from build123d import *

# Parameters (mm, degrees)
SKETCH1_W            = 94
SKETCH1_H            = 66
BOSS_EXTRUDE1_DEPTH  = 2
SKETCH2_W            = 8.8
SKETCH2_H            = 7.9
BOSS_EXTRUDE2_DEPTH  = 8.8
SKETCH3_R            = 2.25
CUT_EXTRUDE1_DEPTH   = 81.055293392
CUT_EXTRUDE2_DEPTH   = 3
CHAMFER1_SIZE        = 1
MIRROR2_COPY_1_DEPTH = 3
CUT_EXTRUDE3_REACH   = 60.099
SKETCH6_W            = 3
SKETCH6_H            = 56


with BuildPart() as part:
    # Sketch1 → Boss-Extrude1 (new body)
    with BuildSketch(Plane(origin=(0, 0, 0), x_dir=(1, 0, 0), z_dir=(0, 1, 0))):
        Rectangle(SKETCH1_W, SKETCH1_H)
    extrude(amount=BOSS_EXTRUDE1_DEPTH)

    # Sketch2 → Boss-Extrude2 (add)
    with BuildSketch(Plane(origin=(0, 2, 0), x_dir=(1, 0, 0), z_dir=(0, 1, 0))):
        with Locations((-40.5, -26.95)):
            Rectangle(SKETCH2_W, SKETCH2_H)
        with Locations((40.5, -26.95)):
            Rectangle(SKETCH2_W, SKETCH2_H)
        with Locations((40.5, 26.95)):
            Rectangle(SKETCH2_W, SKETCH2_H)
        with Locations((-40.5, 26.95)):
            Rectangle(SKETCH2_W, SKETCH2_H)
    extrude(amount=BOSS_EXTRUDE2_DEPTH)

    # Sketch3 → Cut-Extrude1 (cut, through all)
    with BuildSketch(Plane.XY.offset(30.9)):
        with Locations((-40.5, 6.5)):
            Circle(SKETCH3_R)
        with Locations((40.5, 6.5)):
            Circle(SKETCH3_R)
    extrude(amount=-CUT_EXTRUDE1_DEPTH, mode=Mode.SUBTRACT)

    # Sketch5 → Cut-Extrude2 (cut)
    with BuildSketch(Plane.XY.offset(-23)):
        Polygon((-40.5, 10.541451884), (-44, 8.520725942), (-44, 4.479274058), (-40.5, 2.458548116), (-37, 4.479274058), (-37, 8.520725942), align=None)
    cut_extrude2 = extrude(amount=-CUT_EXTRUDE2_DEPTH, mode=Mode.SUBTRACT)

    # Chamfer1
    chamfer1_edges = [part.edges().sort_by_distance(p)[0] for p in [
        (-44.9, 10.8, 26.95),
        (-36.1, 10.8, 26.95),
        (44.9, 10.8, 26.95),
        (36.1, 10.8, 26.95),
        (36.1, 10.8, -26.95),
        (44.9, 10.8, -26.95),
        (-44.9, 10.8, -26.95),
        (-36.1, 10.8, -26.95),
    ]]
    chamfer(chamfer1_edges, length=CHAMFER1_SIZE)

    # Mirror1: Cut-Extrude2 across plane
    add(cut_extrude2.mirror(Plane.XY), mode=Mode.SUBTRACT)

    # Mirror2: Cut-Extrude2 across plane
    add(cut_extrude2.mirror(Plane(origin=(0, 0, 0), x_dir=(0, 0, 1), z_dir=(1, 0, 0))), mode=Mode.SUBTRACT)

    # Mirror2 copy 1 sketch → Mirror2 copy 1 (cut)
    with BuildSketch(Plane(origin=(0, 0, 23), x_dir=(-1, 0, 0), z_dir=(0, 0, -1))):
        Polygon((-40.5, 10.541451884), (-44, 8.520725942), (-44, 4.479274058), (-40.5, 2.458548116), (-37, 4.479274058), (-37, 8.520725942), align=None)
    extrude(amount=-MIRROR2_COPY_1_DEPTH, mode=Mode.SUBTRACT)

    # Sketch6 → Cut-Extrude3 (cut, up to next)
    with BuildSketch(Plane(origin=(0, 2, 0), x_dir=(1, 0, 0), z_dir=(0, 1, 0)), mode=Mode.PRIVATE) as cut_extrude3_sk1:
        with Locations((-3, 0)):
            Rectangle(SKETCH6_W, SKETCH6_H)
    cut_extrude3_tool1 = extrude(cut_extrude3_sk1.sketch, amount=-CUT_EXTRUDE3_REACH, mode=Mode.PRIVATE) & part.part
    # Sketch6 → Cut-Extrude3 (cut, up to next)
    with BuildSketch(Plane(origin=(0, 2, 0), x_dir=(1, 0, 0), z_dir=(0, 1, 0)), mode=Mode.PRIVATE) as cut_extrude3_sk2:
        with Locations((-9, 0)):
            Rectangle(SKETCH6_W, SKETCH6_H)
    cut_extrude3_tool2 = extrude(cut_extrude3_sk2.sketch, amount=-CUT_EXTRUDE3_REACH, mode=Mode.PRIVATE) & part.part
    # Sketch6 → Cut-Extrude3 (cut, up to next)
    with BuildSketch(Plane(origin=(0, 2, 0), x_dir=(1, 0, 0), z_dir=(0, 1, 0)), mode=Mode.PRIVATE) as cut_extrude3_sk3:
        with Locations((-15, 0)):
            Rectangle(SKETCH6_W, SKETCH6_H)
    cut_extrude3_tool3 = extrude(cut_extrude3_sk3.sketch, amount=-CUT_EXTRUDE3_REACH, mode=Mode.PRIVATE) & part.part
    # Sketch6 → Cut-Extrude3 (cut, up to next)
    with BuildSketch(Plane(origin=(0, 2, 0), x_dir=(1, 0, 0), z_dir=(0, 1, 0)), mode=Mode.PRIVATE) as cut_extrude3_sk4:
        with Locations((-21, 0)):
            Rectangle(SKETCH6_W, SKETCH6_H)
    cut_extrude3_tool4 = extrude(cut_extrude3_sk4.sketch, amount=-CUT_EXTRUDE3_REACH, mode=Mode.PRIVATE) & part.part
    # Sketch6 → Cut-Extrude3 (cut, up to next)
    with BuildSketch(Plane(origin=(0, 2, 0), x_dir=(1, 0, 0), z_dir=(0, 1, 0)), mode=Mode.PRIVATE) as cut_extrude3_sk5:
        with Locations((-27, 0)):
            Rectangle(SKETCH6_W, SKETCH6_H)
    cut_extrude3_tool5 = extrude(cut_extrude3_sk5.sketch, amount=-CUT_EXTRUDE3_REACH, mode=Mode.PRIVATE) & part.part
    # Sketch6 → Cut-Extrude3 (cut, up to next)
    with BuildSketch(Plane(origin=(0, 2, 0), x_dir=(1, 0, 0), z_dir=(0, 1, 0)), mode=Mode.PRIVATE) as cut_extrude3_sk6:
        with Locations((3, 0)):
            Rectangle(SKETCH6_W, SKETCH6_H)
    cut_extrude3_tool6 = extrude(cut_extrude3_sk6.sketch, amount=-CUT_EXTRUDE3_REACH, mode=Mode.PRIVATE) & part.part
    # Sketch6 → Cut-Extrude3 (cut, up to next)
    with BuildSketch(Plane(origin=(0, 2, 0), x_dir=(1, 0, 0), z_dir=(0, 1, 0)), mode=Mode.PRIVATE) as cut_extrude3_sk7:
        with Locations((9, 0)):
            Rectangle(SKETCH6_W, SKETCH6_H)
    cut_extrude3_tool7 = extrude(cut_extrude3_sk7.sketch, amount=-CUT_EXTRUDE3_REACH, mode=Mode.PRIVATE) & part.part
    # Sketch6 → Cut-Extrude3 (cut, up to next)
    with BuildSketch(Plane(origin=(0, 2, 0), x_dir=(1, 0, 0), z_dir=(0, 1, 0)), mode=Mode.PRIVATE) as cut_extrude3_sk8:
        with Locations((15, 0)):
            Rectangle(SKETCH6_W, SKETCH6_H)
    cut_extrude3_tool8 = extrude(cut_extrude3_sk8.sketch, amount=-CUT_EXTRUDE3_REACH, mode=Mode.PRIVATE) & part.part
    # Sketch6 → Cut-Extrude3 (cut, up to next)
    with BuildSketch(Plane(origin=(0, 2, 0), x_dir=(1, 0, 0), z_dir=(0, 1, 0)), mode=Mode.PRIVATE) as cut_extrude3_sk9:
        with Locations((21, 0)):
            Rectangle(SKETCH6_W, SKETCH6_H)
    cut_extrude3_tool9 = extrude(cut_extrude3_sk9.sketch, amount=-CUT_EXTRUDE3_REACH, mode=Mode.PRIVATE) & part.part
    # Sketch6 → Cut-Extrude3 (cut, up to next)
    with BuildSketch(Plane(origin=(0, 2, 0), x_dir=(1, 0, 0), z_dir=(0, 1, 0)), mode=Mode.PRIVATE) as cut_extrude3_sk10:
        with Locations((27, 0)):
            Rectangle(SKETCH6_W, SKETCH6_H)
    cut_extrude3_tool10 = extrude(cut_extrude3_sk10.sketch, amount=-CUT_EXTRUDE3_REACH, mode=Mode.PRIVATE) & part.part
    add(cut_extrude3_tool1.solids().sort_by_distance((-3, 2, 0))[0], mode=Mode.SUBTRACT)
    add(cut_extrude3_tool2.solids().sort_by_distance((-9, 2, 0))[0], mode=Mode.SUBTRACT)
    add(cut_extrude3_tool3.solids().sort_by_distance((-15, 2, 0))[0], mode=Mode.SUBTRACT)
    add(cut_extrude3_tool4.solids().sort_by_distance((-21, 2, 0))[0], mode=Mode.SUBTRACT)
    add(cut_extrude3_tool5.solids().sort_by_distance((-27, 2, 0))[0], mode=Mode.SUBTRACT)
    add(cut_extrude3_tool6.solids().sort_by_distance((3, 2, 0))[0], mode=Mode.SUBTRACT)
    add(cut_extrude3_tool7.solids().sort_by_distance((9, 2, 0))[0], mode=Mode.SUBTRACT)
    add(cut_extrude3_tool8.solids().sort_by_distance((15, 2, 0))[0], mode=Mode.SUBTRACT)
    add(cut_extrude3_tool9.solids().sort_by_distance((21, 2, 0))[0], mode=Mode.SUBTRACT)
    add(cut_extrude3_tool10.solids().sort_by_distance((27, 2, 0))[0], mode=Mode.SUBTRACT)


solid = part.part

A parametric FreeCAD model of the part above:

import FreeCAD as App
import Part
import Sketcher

V = App.Vector
Q = App.Units.Quantity


def edges_at(feature, points):
    """Names of the edges that pass closest to the given points."""
    edges = feature.Shape.Edges
    near = lambda p: min(range(len(edges)), key=lambda i: edges[i].distToShape(Part.Vertex(*p))[0])
    return sorted({f"Edge{near(p) + 1}" for p in points})


def add_polygon(sketch, points):
    """Adds a closed chain of lines whose ends are joined by coincident constraints."""
    first, n = sketch.GeometryCount, len(points)
    for a, b in zip(points, points[1:] + points[:1]):
        sketch.addGeometry(Part.LineSegment(App.Vector(*a, 0), App.Vector(*b, 0)), False)
    for i in range(n):
        sketch.addConstraint(Sketcher.Constraint("Coincident", first + i, 2, first + (i + 1) % n, 1))

doc = App.newDocument("Part")
params = doc.addObject("Spreadsheet::Sheet", "Params")
for row, (alias, value) in enumerate([
    ("sketch1_width", "94 mm"),
    ("sketch1_height", "66 mm"),
    ("pad1_length", "2 mm"),
    ("sketch2_width", "8.8 mm"),
    ("sketch2_height", "7.9 mm"),
    ("pad2_length", "8.8 mm"),
    ("sketch3_diameter", "4.5 mm"),
    ("pocket2_length", "3 mm"),
    ("chamfer_size", "1 mm"),
    ("pocket3_length", "3 mm"),
    ("sketch6_width", "3 mm"),
    ("sketch6_height", "56 mm"),
    ("sketch7_width", "3 mm"),
    ("sketch7_height", "56 mm"),
    ("sketch8_width", "3 mm"),
    ("sketch8_height", "56 mm"),
    ("sketch9_width", "3 mm"),
    ("sketch9_height", "56 mm"),
    ("sketch10_width", "3 mm"),
    ("sketch10_height", "56 mm"),
    ("sketch11_width", "3 mm"),
    ("sketch11_height", "56 mm"),
    ("sketch12_width", "3 mm"),
    ("sketch12_height", "56 mm"),
    ("sketch13_width", "3 mm"),
    ("sketch13_height", "56 mm"),
    ("sketch14_width", "3 mm"),
    ("sketch14_height", "56 mm"),
    ("sketch15_width", "3 mm"),
    ("sketch15_height", "56 mm"),
], start=1):
    params.set(f"A{row}", alias)
    params.set(f"B{row}", "=" + value)
    params.setAlias(f"B{row}", alias)

body = doc.addObject("PartDesign::Body", "Body")

sketch1 = doc.addObject("Sketcher::SketchObject", "Sketch")
body.addObject(sketch1)
sketch1.AttachmentSupport = (doc.XZ_Plane, [""])
sketch1.MapMode = "FlatFace"
add_polygon(sketch1, [(-47, -33), (-47, 33), (47, 33), (47, -33)])
sketch1.addConstraint([
    Sketcher.Constraint("Vertical", 0),
    Sketcher.Constraint("Horizontal", 1),
    Sketcher.Constraint("Vertical", 2),
    Sketcher.Constraint("Horizontal", 3),
    Sketcher.Constraint("Symmetric", 0, 2, 2, 2, -1, 1),
    Sketcher.Constraint("DistanceX", 1, 1, 1, 2, 94.0),
    Sketcher.Constraint("DistanceY", 0, 1, 0, 2, 66.0),
])
sketch1.setExpression("Constraints[9]", "Params.sketch1_width")
sketch1.setExpression("Constraints[10]", "Params.sketch1_height")
pad1 = doc.addObject("PartDesign::Pad", "Pad")
body.addObject(pad1)
pad1.Profile = sketch1
pad1.setExpression("Length", "Params.pad1_length")
pad1.Reversed = True

sketch2 = doc.addObject("Sketcher::SketchObject", "Sketch001")
body.addObject(sketch2)
sketch2.AttachmentSupport = (doc.XZ_Plane, [""])
sketch2.MapMode = "FlatFace"
sketch2.AttachmentOffset = App.Placement(V(0, 0, -2), App.Rotation())
add_polygon(sketch2, [(-45, 23), (-45, 31), (-36, 31), (-36, 23)])
add_polygon(sketch2, [(36, 23), (36, 31), (45, 31), (45, 23)])
add_polygon(sketch2, [(36, -31), (36, -23), (45, -23), (45, -31)])
add_polygon(sketch2, [(-45, -31), (-45, -23), (-36, -23), (-36, -31)])
sketch2.addConstraint([
    Sketcher.Constraint("Vertical", 0),
    Sketcher.Constraint("Horizontal", 1),
    Sketcher.Constraint("Vertical", 2),
    Sketcher.Constraint("Horizontal", 3),
    Sketcher.Constraint("Vertical", 4),
    Sketcher.Constraint("Horizontal", 5),
    Sketcher.Constraint("Vertical", 6),
    Sketcher.Constraint("Horizontal", 7),
    Sketcher.Constraint("Vertical", 8),
    Sketcher.Constraint("Horizontal", 9),
    Sketcher.Constraint("Vertical", 10),
    Sketcher.Constraint("Horizontal", 11),
    Sketcher.Constraint("Vertical", 12),
    Sketcher.Constraint("Horizontal", 13),
    Sketcher.Constraint("Vertical", 14),
    Sketcher.Constraint("Horizontal", 15),
    Sketcher.Constraint("Symmetric", 2, 2, 8, 2, -1, 1),
    Sketcher.Constraint("Symmetric", 0, 2, 10, 2, -1, 1),
    Sketcher.Constraint("Symmetric", 6, 2, 12, 2, -1, 1),
    Sketcher.Constraint("Symmetric", 4, 2, 14, 2, -1, 1),
    Sketcher.Constraint("Symmetric", 1, 2, 4, 2, -2),
    Sketcher.Constraint("Symmetric", 3, 2, 6, 2, -2),
    Sketcher.Constraint("DistanceX", 1, 1, 1, 2, 8.8),
    Sketcher.Constraint("DistanceY", 0, 1, 0, 2, 7.9),
    Sketcher.Constraint("DistanceY", -1, 1, 2, 2, 23.0),
    Sketcher.Constraint("DistanceX", 0, 2, 4, 2, 81.0),
])
sketch2.setExpression("Constraints[38]", "Params.sketch2_width")
sketch2.setExpression("Constraints[39]", "Params.sketch2_height")
pad2 = doc.addObject("PartDesign::Pad", "Pad001")
body.addObject(pad2)
pad2.Profile = sketch2
pad2.setExpression("Length", "Params.pad2_length")
pad2.Reversed = True

sketch3 = doc.addObject("Sketcher::SketchObject", "Sketch002")
body.addObject(sketch3)
sketch3.AttachmentSupport = (doc.XY_Plane, [""])
sketch3.MapMode = "FlatFace"
sketch3.AttachmentOffset = App.Placement(V(0, 0, 30.9), App.Rotation())
sketch3.addGeometry([
    Part.Circle(V(-40.5, 6.5, 0), V(0, 0, 1), 2.2),
    Part.Circle(V(40.5, 6.5, 0), V(0, 0, 1), 2.2),
], False)
sketch3.addConstraint([
    Sketcher.Constraint("Equal", 0, 1),
    Sketcher.Constraint("Symmetric", 0, 3, 1, 3, -2),
    Sketcher.Constraint("Diameter", 0, 4.5),
    Sketcher.Constraint("DistanceX", 0, 3, 1, 3, 81.0),
    Sketcher.Constraint("DistanceY", -1, 1, 0, 3, 6.5),
])
sketch3.setExpression("Constraints[2]", "Params.sketch3_diameter")
pocket1 = doc.addObject("PartDesign::Pocket", "Pocket")
body.addObject(pocket1)
pocket1.Profile = sketch3
pocket1.Type = "ThroughAll"

sketch4 = doc.addObject("Sketcher::SketchObject", "Sketch003")
body.addObject(sketch4)
sketch4.AttachmentSupport = (doc.XY_Plane, [""])
sketch4.MapMode = "FlatFace"
sketch4.AttachmentOffset = App.Placement(V(0, 0, -23), App.Rotation())
add_polygon(sketch4, [(-40.5, 10.5), (-44, 8.5), (-44, 4.5), (-40.5, 2.5), (-37, 4.5), (-37, 8.5)])
sketch4.addConstraint([
    Sketcher.Constraint("Vertical", 1),
    Sketcher.Constraint("Vertical", 4),
    Sketcher.Constraint("Parallel", 0, 3),
    Sketcher.Constraint("Parallel", 2, 5),
    Sketcher.Constraint("Horizontal", 1, 2, 3, 2),
    Sketcher.Constraint("Horizontal", 0, 2, 4, 2),
    Sketcher.Constraint("Vertical", 2, 2, 5, 2),
    Sketcher.Constraint("Angle", 0, Q("-150 deg")),
    Sketcher.Constraint("DistanceX", 0, 2, -1, 1, 44.0),
    Sketcher.Constraint("DistanceX", 3, 2, -1, 1, 37.0),
    Sketcher.Constraint("DistanceY", 1, 2, 1, 1, 4.041452),
    Sketcher.Constraint("DistanceY", -1, 1, 2, 2, 2.458548),
])
pocket2 = doc.addObject("PartDesign::Pocket", "Pocket001")
body.addObject(pocket2)
pocket2.Profile = sketch4
pocket2.setExpression("Length", "Params.pocket2_length")
doc.recompute()

chamfer = doc.addObject("PartDesign::Chamfer", "Chamfer")
body.addObject(chamfer)
chamfer.Base = (pocket2, edges_at(pocket2, [
    (-44.9, 10.8, 26.95),
    (-36.1, 10.8, 26.95),
    (44.9, 10.8, 26.95),
    (36.1, 10.8, 26.95),
    (36.1, 10.8, -26.95),
    (44.9, 10.8, -26.95),
    (-44.9, 10.8, -26.95),
    (-36.1, 10.8, -26.95),
]))
chamfer.setExpression("Size", "Params.chamfer_size")
doc.recompute()

mirrored = doc.addObject("PartDesign::Mirrored", "Mirrored")
body.addObject(mirrored)
mirrored.Originals = [pocket2]
mirrored.MirrorPlane = (doc.XY_Plane, [""])
body.Tip = mirrored
doc.recompute()

mirrored2 = doc.addObject("PartDesign::Mirrored", "Mirrored001")
body.addObject(mirrored2)
mirrored2.Originals = [pocket2]
mirrored2.MirrorPlane = (doc.YZ_Plane, [""])
body.Tip = mirrored2

sketch5 = doc.addObject("Sketcher::SketchObject", "Sketch004")
body.addObject(sketch5)
sketch5.AttachmentSupport = (doc.XY_Plane, [""])
sketch5.MapMode = "FlatFace"
sketch5.AttachmentOffset = App.Placement(V(0, 0, 23), App.Rotation())
add_polygon(sketch5, [(40.5, 10.5), (44, 8.5), (44, 4.5), (40.5, 2.5), (37, 4.5), (37, 8.5)])
sketch5.addConstraint([
    Sketcher.Constraint("Vertical", 1),
    Sketcher.Constraint("Vertical", 4),
    Sketcher.Constraint("Parallel", 0, 3),
    Sketcher.Constraint("Parallel", 2, 5),
    Sketcher.Constraint("Horizontal", 1, 2, 3, 2),
    Sketcher.Constraint("Horizontal", 0, 2, 4, 2),
    Sketcher.Constraint("Vertical", 2, 2, 5, 2),
    Sketcher.Constraint("Angle", 0, Q("-30 deg")),
    Sketcher.Constraint("DistanceX", -1, 1, 0, 2, 44.0),
    Sketcher.Constraint("DistanceX", -1, 1, 3, 2, 37.0),
    Sketcher.Constraint("DistanceY", 1, 2, 1, 1, 4.041452),
    Sketcher.Constraint("DistanceY", -1, 1, 2, 2, 2.458548),
])
pocket3 = doc.addObject("PartDesign::Pocket", "Pocket002")
body.addObject(pocket3)
pocket3.Profile = sketch5
pocket3.setExpression("Length", "Params.pocket3_length")
pocket3.Reversed = True

sketch6 = doc.addObject("Sketcher::SketchObject", "Sketch005")
body.addObject(sketch6)
sketch6.AttachmentSupport = (doc.XZ_Plane, [""])
sketch6.MapMode = "FlatFace"
sketch6.AttachmentOffset = App.Placement(V(0, 0, -2), App.Rotation())
add_polygon(sketch6, [(-4.5, -28), (-4.5, 28), (-1.5, 28), (-1.5, -28)])
sketch6.addConstraint([
    Sketcher.Constraint("Vertical", 0),
    Sketcher.Constraint("Horizontal", 1),
    Sketcher.Constraint("Vertical", 2),
    Sketcher.Constraint("Horizontal", 3),
    Sketcher.Constraint("DistanceX", 1, 1, 1, 2, 3.0),
    Sketcher.Constraint("DistanceY", 0, 1, 0, 2, 56.0),
    Sketcher.Constraint("DistanceY", -1, 1, 0, 2, 28.0),
    Sketcher.Constraint("DistanceX", 0, 2, -1, 1, 4.5),
])
sketch6.setExpression("Constraints[8]", "Params.sketch6_width")
sketch6.setExpression("Constraints[9]", "Params.sketch6_height")
pocket4 = doc.addObject("PartDesign::Pocket", "Pocket003")
body.addObject(pocket4)
pocket4.Profile = sketch6
pocket4.Type = "UpToFirst"
pocket4.Reversed = True

sketch7 = doc.addObject("Sketcher::SketchObject", "Sketch006")
body.addObject(sketch7)
sketch7.AttachmentSupport = (doc.XZ_Plane, [""])
sketch7.MapMode = "FlatFace"
sketch7.AttachmentOffset = App.Placement(V(0, 0, -2), App.Rotation())
add_polygon(sketch7, [(-10.5, -28), (-10.5, 28), (-7.5, 28), (-7.5, -28)])
sketch7.addConstraint([
    Sketcher.Constraint("Vertical", 0),
    Sketcher.Constraint("Horizontal", 1),
    Sketcher.Constraint("Vertical", 2),
    Sketcher.Constraint("Horizontal", 3),
    Sketcher.Constraint("DistanceX", 1, 1, 1, 2, 3.0),
    Sketcher.Constraint("DistanceY", 0, 1, 0, 2, 56.0),
    Sketcher.Constraint("DistanceY", -1, 1, 0, 2, 28.0),
    Sketcher.Constraint("DistanceX", 0, 2, -1, 1, 10.5),
])
sketch7.setExpression("Constraints[8]", "Params.sketch7_width")
sketch7.setExpression("Constraints[9]", "Params.sketch7_height")
pocket5 = doc.addObject("PartDesign::Pocket", "Pocket004")
body.addObject(pocket5)
pocket5.Profile = sketch7
pocket5.Type = "UpToFirst"
pocket5.Reversed = True

sketch8 = doc.addObject("Sketcher::SketchObject", "Sketch007")
body.addObject(sketch8)
sketch8.AttachmentSupport = (doc.XZ_Plane, [""])
sketch8.MapMode = "FlatFace"
sketch8.AttachmentOffset = App.Placement(V(0, 0, -2), App.Rotation())
add_polygon(sketch8, [(-16.5, -28), (-16.5, 28), (-13.5, 28), (-13.5, -28)])
sketch8.addConstraint([
    Sketcher.Constraint("Vertical", 0),
    Sketcher.Constraint("Horizontal", 1),
    Sketcher.Constraint("Vertical", 2),
    Sketcher.Constraint("Horizontal", 3),
    Sketcher.Constraint("DistanceX", 1, 1, 1, 2, 3.0),
    Sketcher.Constraint("DistanceY", 0, 1, 0, 2, 56.0),
    Sketcher.Constraint("DistanceY", -1, 1, 0, 2, 28.0),
    Sketcher.Constraint("DistanceX", 0, 2, -1, 1, 16.5),
])
sketch8.setExpression("Constraints[8]", "Params.sketch8_width")
sketch8.setExpression("Constraints[9]", "Params.sketch8_height")
pocket6 = doc.addObject("PartDesign::Pocket", "Pocket005")
body.addObject(pocket6)
pocket6.Profile = sketch8
pocket6.Type = "UpToFirst"
pocket6.Reversed = True

sketch9 = doc.addObject("Sketcher::SketchObject", "Sketch008")
body.addObject(sketch9)
sketch9.AttachmentSupport = (doc.XZ_Plane, [""])
sketch9.MapMode = "FlatFace"
sketch9.AttachmentOffset = App.Placement(V(0, 0, -2), App.Rotation())
add_polygon(sketch9, [(-22.5, -28), (-22.5, 28), (-19.5, 28), (-19.5, -28)])
sketch9.addConstraint([
    Sketcher.Constraint("Vertical", 0),
    Sketcher.Constraint("Horizontal", 1),
    Sketcher.Constraint("Vertical", 2),
    Sketcher.Constraint("Horizontal", 3),
    Sketcher.Constraint("DistanceX", 1, 1, 1, 2, 3.0),
    Sketcher.Constraint("DistanceY", 0, 1, 0, 2, 56.0),
    Sketcher.Constraint("DistanceY", -1, 1, 0, 2, 28.0),
    Sketcher.Constraint("DistanceX", 0, 2, -1, 1, 22.5),
])
sketch9.setExpression("Constraints[8]", "Params.sketch9_width")
sketch9.setExpression("Constraints[9]", "Params.sketch9_height")
pocket7 = doc.addObject("PartDesign::Pocket", "Pocket006")
body.addObject(pocket7)
pocket7.Profile = sketch9
pocket7.Type = "UpToFirst"
pocket7.Reversed = True

sketch10 = doc.addObject("Sketcher::SketchObject", "Sketch009")
body.addObject(sketch10)
sketch10.AttachmentSupport = (doc.XZ_Plane, [""])
sketch10.MapMode = "FlatFace"
sketch10.AttachmentOffset = App.Placement(V(0, 0, -2), App.Rotation())
add_polygon(sketch10, [(-28.5, -28), (-28.5, 28), (-25.5, 28), (-25.5, -28)])
sketch10.addConstraint([
    Sketcher.Constraint("Vertical", 0),
    Sketcher.Constraint("Horizontal", 1),
    Sketcher.Constraint("Vertical", 2),
    Sketcher.Constraint("Horizontal", 3),
    Sketcher.Constraint("DistanceX", 1, 1, 1, 2, 3.0),
    Sketcher.Constraint("DistanceY", 0, 1, 0, 2, 56.0),
    Sketcher.Constraint("DistanceY", -1, 1, 0, 2, 28.0),
    Sketcher.Constraint("DistanceX", 0, 2, -1, 1, 28.5),
])
sketch10.setExpression("Constraints[8]", "Params.sketch10_width")
sketch10.setExpression("Constraints[9]", "Params.sketch10_height")
pocket8 = doc.addObject("PartDesign::Pocket", "Pocket007")
body.addObject(pocket8)
pocket8.Profile = sketch10
pocket8.Type = "UpToFirst"
pocket8.Reversed = True

sketch11 = doc.addObject("Sketcher::SketchObject", "Sketch010")
body.addObject(sketch11)
sketch11.AttachmentSupport = (doc.XZ_Plane, [""])
sketch11.MapMode = "FlatFace"
sketch11.AttachmentOffset = App.Placement(V(0, 0, -2), App.Rotation())
add_polygon(sketch11, [(1.5, -28), (1.5, 28), (4.5, 28), (4.5, -28)])
sketch11.addConstraint([
    Sketcher.Constraint("Vertical", 0),
    Sketcher.Constraint("Horizontal", 1),
    Sketcher.Constraint("Vertical", 2),
    Sketcher.Constraint("Horizontal", 3),
    Sketcher.Constraint("DistanceX", 1, 1, 1, 2, 3.0),
    Sketcher.Constraint("DistanceY", 0, 1, 0, 2, 56.0),
    Sketcher.Constraint("DistanceY", -1, 1, 0, 2, 28.0),
    Sketcher.Constraint("DistanceX", -1, 1, 0, 2, 1.5),
])
sketch11.setExpression("Constraints[8]", "Params.sketch11_width")
sketch11.setExpression("Constraints[9]", "Params.sketch11_height")
pocket9 = doc.addObject("PartDesign::Pocket", "Pocket008")
body.addObject(pocket9)
pocket9.Profile = sketch11
pocket9.Type = "UpToFirst"
pocket9.Reversed = True

sketch12 = doc.addObject("Sketcher::SketchObject", "Sketch011")
body.addObject(sketch12)
sketch12.AttachmentSupport = (doc.XZ_Plane, [""])
sketch12.MapMode = "FlatFace"
sketch12.AttachmentOffset = App.Placement(V(0, 0, -2), App.Rotation())
add_polygon(sketch12, [(7.5, -28), (7.5, 28), (10.5, 28), (10.5, -28)])
sketch12.addConstraint([
    Sketcher.Constraint("Vertical", 0),
    Sketcher.Constraint("Horizontal", 1),
    Sketcher.Constraint("Vertical", 2),
    Sketcher.Constraint("Horizontal", 3),
    Sketcher.Constraint("DistanceX", 1, 1, 1, 2, 3.0),
    Sketcher.Constraint("DistanceY", 0, 1, 0, 2, 56.0),
    Sketcher.Constraint("DistanceY", -1, 1, 0, 2, 28.0),
    Sketcher.Constraint("DistanceX", -1, 1, 0, 2, 7.5),
])
sketch12.setExpression("Constraints[8]", "Params.sketch12_width")
sketch12.setExpression("Constraints[9]", "Params.sketch12_height")
pocket10 = doc.addObject("PartDesign::Pocket", "Pocket009")
body.addObject(pocket10)
pocket10.Profile = sketch12
pocket10.Type = "UpToFirst"
pocket10.Reversed = True

sketch13 = doc.addObject("Sketcher::SketchObject", "Sketch012")
body.addObject(sketch13)
sketch13.AttachmentSupport = (doc.XZ_Plane, [""])
sketch13.MapMode = "FlatFace"
sketch13.AttachmentOffset = App.Placement(V(0, 0, -2), App.Rotation())
add_polygon(sketch13, [(13.5, -28), (13.5, 28), (16.5, 28), (16.5, -28)])
sketch13.addConstraint([
    Sketcher.Constraint("Vertical", 0),
    Sketcher.Constraint("Horizontal", 1),
    Sketcher.Constraint("Vertical", 2),
    Sketcher.Constraint("Horizontal", 3),
    Sketcher.Constraint("DistanceX", 1, 1, 1, 2, 3.0),
    Sketcher.Constraint("DistanceY", 0, 1, 0, 2, 56.0),
    Sketcher.Constraint("DistanceY", -1, 1, 0, 2, 28.0),
    Sketcher.Constraint("DistanceX", -1, 1, 0, 2, 13.5),
])
sketch13.setExpression("Constraints[8]", "Params.sketch13_width")
sketch13.setExpression("Constraints[9]", "Params.sketch13_height")
pocket11 = doc.addObject("PartDesign::Pocket", "Pocket010")
body.addObject(pocket11)
pocket11.Profile = sketch13
pocket11.Type = "UpToFirst"
pocket11.Reversed = True

sketch14 = doc.addObject("Sketcher::SketchObject", "Sketch013")
body.addObject(sketch14)
sketch14.AttachmentSupport = (doc.XZ_Plane, [""])
sketch14.MapMode = "FlatFace"
sketch14.AttachmentOffset = App.Placement(V(0, 0, -2), App.Rotation())
add_polygon(sketch14, [(19.5, -28), (19.5, 28), (22.5, 28), (22.5, -28)])
sketch14.addConstraint([
    Sketcher.Constraint("Vertical", 0),
    Sketcher.Constraint("Horizontal", 1),
    Sketcher.Constraint("Vertical", 2),
    Sketcher.Constraint("Horizontal", 3),
    Sketcher.Constraint("DistanceX", 1, 1, 1, 2, 3.0),
    Sketcher.Constraint("DistanceY", 0, 1, 0, 2, 56.0),
    Sketcher.Constraint("DistanceY", -1, 1, 0, 2, 28.0),
    Sketcher.Constraint("DistanceX", -1, 1, 0, 2, 19.5),
])
sketch14.setExpression("Constraints[8]", "Params.sketch14_width")
sketch14.setExpression("Constraints[9]", "Params.sketch14_height")
pocket12 = doc.addObject("PartDesign::Pocket", "Pocket011")
body.addObject(pocket12)
pocket12.Profile = sketch14
pocket12.Type = "UpToFirst"
pocket12.Reversed = True

sketch15 = doc.addObject("Sketcher::SketchObject", "Sketch014")
body.addObject(sketch15)
sketch15.AttachmentSupport = (doc.XZ_Plane, [""])
sketch15.MapMode = "FlatFace"
sketch15.AttachmentOffset = App.Placement(V(0, 0, -2), App.Rotation())
add_polygon(sketch15, [(25.5, -28), (25.5, 28), (28.5, 28), (28.5, -28)])
sketch15.addConstraint([
    Sketcher.Constraint("Vertical", 0),
    Sketcher.Constraint("Horizontal", 1),
    Sketcher.Constraint("Vertical", 2),
    Sketcher.Constraint("Horizontal", 3),
    Sketcher.Constraint("DistanceX", 1, 1, 1, 2, 3.0),
    Sketcher.Constraint("DistanceY", 0, 1, 0, 2, 56.0),
    Sketcher.Constraint("DistanceY", -1, 1, 0, 2, 28.0),
    Sketcher.Constraint("DistanceX", -1, 1, 0, 2, 25.5),
])
sketch15.setExpression("Constraints[8]", "Params.sketch15_width")
sketch15.setExpression("Constraints[9]", "Params.sketch15_height")
pocket13 = doc.addObject("PartDesign::Pocket", "Pocket012")
body.addObject(pocket13)
pocket13.Profile = sketch15
pocket13.Type = "UpToFirst"
pocket13.Reversed = True

doc.recompute()
